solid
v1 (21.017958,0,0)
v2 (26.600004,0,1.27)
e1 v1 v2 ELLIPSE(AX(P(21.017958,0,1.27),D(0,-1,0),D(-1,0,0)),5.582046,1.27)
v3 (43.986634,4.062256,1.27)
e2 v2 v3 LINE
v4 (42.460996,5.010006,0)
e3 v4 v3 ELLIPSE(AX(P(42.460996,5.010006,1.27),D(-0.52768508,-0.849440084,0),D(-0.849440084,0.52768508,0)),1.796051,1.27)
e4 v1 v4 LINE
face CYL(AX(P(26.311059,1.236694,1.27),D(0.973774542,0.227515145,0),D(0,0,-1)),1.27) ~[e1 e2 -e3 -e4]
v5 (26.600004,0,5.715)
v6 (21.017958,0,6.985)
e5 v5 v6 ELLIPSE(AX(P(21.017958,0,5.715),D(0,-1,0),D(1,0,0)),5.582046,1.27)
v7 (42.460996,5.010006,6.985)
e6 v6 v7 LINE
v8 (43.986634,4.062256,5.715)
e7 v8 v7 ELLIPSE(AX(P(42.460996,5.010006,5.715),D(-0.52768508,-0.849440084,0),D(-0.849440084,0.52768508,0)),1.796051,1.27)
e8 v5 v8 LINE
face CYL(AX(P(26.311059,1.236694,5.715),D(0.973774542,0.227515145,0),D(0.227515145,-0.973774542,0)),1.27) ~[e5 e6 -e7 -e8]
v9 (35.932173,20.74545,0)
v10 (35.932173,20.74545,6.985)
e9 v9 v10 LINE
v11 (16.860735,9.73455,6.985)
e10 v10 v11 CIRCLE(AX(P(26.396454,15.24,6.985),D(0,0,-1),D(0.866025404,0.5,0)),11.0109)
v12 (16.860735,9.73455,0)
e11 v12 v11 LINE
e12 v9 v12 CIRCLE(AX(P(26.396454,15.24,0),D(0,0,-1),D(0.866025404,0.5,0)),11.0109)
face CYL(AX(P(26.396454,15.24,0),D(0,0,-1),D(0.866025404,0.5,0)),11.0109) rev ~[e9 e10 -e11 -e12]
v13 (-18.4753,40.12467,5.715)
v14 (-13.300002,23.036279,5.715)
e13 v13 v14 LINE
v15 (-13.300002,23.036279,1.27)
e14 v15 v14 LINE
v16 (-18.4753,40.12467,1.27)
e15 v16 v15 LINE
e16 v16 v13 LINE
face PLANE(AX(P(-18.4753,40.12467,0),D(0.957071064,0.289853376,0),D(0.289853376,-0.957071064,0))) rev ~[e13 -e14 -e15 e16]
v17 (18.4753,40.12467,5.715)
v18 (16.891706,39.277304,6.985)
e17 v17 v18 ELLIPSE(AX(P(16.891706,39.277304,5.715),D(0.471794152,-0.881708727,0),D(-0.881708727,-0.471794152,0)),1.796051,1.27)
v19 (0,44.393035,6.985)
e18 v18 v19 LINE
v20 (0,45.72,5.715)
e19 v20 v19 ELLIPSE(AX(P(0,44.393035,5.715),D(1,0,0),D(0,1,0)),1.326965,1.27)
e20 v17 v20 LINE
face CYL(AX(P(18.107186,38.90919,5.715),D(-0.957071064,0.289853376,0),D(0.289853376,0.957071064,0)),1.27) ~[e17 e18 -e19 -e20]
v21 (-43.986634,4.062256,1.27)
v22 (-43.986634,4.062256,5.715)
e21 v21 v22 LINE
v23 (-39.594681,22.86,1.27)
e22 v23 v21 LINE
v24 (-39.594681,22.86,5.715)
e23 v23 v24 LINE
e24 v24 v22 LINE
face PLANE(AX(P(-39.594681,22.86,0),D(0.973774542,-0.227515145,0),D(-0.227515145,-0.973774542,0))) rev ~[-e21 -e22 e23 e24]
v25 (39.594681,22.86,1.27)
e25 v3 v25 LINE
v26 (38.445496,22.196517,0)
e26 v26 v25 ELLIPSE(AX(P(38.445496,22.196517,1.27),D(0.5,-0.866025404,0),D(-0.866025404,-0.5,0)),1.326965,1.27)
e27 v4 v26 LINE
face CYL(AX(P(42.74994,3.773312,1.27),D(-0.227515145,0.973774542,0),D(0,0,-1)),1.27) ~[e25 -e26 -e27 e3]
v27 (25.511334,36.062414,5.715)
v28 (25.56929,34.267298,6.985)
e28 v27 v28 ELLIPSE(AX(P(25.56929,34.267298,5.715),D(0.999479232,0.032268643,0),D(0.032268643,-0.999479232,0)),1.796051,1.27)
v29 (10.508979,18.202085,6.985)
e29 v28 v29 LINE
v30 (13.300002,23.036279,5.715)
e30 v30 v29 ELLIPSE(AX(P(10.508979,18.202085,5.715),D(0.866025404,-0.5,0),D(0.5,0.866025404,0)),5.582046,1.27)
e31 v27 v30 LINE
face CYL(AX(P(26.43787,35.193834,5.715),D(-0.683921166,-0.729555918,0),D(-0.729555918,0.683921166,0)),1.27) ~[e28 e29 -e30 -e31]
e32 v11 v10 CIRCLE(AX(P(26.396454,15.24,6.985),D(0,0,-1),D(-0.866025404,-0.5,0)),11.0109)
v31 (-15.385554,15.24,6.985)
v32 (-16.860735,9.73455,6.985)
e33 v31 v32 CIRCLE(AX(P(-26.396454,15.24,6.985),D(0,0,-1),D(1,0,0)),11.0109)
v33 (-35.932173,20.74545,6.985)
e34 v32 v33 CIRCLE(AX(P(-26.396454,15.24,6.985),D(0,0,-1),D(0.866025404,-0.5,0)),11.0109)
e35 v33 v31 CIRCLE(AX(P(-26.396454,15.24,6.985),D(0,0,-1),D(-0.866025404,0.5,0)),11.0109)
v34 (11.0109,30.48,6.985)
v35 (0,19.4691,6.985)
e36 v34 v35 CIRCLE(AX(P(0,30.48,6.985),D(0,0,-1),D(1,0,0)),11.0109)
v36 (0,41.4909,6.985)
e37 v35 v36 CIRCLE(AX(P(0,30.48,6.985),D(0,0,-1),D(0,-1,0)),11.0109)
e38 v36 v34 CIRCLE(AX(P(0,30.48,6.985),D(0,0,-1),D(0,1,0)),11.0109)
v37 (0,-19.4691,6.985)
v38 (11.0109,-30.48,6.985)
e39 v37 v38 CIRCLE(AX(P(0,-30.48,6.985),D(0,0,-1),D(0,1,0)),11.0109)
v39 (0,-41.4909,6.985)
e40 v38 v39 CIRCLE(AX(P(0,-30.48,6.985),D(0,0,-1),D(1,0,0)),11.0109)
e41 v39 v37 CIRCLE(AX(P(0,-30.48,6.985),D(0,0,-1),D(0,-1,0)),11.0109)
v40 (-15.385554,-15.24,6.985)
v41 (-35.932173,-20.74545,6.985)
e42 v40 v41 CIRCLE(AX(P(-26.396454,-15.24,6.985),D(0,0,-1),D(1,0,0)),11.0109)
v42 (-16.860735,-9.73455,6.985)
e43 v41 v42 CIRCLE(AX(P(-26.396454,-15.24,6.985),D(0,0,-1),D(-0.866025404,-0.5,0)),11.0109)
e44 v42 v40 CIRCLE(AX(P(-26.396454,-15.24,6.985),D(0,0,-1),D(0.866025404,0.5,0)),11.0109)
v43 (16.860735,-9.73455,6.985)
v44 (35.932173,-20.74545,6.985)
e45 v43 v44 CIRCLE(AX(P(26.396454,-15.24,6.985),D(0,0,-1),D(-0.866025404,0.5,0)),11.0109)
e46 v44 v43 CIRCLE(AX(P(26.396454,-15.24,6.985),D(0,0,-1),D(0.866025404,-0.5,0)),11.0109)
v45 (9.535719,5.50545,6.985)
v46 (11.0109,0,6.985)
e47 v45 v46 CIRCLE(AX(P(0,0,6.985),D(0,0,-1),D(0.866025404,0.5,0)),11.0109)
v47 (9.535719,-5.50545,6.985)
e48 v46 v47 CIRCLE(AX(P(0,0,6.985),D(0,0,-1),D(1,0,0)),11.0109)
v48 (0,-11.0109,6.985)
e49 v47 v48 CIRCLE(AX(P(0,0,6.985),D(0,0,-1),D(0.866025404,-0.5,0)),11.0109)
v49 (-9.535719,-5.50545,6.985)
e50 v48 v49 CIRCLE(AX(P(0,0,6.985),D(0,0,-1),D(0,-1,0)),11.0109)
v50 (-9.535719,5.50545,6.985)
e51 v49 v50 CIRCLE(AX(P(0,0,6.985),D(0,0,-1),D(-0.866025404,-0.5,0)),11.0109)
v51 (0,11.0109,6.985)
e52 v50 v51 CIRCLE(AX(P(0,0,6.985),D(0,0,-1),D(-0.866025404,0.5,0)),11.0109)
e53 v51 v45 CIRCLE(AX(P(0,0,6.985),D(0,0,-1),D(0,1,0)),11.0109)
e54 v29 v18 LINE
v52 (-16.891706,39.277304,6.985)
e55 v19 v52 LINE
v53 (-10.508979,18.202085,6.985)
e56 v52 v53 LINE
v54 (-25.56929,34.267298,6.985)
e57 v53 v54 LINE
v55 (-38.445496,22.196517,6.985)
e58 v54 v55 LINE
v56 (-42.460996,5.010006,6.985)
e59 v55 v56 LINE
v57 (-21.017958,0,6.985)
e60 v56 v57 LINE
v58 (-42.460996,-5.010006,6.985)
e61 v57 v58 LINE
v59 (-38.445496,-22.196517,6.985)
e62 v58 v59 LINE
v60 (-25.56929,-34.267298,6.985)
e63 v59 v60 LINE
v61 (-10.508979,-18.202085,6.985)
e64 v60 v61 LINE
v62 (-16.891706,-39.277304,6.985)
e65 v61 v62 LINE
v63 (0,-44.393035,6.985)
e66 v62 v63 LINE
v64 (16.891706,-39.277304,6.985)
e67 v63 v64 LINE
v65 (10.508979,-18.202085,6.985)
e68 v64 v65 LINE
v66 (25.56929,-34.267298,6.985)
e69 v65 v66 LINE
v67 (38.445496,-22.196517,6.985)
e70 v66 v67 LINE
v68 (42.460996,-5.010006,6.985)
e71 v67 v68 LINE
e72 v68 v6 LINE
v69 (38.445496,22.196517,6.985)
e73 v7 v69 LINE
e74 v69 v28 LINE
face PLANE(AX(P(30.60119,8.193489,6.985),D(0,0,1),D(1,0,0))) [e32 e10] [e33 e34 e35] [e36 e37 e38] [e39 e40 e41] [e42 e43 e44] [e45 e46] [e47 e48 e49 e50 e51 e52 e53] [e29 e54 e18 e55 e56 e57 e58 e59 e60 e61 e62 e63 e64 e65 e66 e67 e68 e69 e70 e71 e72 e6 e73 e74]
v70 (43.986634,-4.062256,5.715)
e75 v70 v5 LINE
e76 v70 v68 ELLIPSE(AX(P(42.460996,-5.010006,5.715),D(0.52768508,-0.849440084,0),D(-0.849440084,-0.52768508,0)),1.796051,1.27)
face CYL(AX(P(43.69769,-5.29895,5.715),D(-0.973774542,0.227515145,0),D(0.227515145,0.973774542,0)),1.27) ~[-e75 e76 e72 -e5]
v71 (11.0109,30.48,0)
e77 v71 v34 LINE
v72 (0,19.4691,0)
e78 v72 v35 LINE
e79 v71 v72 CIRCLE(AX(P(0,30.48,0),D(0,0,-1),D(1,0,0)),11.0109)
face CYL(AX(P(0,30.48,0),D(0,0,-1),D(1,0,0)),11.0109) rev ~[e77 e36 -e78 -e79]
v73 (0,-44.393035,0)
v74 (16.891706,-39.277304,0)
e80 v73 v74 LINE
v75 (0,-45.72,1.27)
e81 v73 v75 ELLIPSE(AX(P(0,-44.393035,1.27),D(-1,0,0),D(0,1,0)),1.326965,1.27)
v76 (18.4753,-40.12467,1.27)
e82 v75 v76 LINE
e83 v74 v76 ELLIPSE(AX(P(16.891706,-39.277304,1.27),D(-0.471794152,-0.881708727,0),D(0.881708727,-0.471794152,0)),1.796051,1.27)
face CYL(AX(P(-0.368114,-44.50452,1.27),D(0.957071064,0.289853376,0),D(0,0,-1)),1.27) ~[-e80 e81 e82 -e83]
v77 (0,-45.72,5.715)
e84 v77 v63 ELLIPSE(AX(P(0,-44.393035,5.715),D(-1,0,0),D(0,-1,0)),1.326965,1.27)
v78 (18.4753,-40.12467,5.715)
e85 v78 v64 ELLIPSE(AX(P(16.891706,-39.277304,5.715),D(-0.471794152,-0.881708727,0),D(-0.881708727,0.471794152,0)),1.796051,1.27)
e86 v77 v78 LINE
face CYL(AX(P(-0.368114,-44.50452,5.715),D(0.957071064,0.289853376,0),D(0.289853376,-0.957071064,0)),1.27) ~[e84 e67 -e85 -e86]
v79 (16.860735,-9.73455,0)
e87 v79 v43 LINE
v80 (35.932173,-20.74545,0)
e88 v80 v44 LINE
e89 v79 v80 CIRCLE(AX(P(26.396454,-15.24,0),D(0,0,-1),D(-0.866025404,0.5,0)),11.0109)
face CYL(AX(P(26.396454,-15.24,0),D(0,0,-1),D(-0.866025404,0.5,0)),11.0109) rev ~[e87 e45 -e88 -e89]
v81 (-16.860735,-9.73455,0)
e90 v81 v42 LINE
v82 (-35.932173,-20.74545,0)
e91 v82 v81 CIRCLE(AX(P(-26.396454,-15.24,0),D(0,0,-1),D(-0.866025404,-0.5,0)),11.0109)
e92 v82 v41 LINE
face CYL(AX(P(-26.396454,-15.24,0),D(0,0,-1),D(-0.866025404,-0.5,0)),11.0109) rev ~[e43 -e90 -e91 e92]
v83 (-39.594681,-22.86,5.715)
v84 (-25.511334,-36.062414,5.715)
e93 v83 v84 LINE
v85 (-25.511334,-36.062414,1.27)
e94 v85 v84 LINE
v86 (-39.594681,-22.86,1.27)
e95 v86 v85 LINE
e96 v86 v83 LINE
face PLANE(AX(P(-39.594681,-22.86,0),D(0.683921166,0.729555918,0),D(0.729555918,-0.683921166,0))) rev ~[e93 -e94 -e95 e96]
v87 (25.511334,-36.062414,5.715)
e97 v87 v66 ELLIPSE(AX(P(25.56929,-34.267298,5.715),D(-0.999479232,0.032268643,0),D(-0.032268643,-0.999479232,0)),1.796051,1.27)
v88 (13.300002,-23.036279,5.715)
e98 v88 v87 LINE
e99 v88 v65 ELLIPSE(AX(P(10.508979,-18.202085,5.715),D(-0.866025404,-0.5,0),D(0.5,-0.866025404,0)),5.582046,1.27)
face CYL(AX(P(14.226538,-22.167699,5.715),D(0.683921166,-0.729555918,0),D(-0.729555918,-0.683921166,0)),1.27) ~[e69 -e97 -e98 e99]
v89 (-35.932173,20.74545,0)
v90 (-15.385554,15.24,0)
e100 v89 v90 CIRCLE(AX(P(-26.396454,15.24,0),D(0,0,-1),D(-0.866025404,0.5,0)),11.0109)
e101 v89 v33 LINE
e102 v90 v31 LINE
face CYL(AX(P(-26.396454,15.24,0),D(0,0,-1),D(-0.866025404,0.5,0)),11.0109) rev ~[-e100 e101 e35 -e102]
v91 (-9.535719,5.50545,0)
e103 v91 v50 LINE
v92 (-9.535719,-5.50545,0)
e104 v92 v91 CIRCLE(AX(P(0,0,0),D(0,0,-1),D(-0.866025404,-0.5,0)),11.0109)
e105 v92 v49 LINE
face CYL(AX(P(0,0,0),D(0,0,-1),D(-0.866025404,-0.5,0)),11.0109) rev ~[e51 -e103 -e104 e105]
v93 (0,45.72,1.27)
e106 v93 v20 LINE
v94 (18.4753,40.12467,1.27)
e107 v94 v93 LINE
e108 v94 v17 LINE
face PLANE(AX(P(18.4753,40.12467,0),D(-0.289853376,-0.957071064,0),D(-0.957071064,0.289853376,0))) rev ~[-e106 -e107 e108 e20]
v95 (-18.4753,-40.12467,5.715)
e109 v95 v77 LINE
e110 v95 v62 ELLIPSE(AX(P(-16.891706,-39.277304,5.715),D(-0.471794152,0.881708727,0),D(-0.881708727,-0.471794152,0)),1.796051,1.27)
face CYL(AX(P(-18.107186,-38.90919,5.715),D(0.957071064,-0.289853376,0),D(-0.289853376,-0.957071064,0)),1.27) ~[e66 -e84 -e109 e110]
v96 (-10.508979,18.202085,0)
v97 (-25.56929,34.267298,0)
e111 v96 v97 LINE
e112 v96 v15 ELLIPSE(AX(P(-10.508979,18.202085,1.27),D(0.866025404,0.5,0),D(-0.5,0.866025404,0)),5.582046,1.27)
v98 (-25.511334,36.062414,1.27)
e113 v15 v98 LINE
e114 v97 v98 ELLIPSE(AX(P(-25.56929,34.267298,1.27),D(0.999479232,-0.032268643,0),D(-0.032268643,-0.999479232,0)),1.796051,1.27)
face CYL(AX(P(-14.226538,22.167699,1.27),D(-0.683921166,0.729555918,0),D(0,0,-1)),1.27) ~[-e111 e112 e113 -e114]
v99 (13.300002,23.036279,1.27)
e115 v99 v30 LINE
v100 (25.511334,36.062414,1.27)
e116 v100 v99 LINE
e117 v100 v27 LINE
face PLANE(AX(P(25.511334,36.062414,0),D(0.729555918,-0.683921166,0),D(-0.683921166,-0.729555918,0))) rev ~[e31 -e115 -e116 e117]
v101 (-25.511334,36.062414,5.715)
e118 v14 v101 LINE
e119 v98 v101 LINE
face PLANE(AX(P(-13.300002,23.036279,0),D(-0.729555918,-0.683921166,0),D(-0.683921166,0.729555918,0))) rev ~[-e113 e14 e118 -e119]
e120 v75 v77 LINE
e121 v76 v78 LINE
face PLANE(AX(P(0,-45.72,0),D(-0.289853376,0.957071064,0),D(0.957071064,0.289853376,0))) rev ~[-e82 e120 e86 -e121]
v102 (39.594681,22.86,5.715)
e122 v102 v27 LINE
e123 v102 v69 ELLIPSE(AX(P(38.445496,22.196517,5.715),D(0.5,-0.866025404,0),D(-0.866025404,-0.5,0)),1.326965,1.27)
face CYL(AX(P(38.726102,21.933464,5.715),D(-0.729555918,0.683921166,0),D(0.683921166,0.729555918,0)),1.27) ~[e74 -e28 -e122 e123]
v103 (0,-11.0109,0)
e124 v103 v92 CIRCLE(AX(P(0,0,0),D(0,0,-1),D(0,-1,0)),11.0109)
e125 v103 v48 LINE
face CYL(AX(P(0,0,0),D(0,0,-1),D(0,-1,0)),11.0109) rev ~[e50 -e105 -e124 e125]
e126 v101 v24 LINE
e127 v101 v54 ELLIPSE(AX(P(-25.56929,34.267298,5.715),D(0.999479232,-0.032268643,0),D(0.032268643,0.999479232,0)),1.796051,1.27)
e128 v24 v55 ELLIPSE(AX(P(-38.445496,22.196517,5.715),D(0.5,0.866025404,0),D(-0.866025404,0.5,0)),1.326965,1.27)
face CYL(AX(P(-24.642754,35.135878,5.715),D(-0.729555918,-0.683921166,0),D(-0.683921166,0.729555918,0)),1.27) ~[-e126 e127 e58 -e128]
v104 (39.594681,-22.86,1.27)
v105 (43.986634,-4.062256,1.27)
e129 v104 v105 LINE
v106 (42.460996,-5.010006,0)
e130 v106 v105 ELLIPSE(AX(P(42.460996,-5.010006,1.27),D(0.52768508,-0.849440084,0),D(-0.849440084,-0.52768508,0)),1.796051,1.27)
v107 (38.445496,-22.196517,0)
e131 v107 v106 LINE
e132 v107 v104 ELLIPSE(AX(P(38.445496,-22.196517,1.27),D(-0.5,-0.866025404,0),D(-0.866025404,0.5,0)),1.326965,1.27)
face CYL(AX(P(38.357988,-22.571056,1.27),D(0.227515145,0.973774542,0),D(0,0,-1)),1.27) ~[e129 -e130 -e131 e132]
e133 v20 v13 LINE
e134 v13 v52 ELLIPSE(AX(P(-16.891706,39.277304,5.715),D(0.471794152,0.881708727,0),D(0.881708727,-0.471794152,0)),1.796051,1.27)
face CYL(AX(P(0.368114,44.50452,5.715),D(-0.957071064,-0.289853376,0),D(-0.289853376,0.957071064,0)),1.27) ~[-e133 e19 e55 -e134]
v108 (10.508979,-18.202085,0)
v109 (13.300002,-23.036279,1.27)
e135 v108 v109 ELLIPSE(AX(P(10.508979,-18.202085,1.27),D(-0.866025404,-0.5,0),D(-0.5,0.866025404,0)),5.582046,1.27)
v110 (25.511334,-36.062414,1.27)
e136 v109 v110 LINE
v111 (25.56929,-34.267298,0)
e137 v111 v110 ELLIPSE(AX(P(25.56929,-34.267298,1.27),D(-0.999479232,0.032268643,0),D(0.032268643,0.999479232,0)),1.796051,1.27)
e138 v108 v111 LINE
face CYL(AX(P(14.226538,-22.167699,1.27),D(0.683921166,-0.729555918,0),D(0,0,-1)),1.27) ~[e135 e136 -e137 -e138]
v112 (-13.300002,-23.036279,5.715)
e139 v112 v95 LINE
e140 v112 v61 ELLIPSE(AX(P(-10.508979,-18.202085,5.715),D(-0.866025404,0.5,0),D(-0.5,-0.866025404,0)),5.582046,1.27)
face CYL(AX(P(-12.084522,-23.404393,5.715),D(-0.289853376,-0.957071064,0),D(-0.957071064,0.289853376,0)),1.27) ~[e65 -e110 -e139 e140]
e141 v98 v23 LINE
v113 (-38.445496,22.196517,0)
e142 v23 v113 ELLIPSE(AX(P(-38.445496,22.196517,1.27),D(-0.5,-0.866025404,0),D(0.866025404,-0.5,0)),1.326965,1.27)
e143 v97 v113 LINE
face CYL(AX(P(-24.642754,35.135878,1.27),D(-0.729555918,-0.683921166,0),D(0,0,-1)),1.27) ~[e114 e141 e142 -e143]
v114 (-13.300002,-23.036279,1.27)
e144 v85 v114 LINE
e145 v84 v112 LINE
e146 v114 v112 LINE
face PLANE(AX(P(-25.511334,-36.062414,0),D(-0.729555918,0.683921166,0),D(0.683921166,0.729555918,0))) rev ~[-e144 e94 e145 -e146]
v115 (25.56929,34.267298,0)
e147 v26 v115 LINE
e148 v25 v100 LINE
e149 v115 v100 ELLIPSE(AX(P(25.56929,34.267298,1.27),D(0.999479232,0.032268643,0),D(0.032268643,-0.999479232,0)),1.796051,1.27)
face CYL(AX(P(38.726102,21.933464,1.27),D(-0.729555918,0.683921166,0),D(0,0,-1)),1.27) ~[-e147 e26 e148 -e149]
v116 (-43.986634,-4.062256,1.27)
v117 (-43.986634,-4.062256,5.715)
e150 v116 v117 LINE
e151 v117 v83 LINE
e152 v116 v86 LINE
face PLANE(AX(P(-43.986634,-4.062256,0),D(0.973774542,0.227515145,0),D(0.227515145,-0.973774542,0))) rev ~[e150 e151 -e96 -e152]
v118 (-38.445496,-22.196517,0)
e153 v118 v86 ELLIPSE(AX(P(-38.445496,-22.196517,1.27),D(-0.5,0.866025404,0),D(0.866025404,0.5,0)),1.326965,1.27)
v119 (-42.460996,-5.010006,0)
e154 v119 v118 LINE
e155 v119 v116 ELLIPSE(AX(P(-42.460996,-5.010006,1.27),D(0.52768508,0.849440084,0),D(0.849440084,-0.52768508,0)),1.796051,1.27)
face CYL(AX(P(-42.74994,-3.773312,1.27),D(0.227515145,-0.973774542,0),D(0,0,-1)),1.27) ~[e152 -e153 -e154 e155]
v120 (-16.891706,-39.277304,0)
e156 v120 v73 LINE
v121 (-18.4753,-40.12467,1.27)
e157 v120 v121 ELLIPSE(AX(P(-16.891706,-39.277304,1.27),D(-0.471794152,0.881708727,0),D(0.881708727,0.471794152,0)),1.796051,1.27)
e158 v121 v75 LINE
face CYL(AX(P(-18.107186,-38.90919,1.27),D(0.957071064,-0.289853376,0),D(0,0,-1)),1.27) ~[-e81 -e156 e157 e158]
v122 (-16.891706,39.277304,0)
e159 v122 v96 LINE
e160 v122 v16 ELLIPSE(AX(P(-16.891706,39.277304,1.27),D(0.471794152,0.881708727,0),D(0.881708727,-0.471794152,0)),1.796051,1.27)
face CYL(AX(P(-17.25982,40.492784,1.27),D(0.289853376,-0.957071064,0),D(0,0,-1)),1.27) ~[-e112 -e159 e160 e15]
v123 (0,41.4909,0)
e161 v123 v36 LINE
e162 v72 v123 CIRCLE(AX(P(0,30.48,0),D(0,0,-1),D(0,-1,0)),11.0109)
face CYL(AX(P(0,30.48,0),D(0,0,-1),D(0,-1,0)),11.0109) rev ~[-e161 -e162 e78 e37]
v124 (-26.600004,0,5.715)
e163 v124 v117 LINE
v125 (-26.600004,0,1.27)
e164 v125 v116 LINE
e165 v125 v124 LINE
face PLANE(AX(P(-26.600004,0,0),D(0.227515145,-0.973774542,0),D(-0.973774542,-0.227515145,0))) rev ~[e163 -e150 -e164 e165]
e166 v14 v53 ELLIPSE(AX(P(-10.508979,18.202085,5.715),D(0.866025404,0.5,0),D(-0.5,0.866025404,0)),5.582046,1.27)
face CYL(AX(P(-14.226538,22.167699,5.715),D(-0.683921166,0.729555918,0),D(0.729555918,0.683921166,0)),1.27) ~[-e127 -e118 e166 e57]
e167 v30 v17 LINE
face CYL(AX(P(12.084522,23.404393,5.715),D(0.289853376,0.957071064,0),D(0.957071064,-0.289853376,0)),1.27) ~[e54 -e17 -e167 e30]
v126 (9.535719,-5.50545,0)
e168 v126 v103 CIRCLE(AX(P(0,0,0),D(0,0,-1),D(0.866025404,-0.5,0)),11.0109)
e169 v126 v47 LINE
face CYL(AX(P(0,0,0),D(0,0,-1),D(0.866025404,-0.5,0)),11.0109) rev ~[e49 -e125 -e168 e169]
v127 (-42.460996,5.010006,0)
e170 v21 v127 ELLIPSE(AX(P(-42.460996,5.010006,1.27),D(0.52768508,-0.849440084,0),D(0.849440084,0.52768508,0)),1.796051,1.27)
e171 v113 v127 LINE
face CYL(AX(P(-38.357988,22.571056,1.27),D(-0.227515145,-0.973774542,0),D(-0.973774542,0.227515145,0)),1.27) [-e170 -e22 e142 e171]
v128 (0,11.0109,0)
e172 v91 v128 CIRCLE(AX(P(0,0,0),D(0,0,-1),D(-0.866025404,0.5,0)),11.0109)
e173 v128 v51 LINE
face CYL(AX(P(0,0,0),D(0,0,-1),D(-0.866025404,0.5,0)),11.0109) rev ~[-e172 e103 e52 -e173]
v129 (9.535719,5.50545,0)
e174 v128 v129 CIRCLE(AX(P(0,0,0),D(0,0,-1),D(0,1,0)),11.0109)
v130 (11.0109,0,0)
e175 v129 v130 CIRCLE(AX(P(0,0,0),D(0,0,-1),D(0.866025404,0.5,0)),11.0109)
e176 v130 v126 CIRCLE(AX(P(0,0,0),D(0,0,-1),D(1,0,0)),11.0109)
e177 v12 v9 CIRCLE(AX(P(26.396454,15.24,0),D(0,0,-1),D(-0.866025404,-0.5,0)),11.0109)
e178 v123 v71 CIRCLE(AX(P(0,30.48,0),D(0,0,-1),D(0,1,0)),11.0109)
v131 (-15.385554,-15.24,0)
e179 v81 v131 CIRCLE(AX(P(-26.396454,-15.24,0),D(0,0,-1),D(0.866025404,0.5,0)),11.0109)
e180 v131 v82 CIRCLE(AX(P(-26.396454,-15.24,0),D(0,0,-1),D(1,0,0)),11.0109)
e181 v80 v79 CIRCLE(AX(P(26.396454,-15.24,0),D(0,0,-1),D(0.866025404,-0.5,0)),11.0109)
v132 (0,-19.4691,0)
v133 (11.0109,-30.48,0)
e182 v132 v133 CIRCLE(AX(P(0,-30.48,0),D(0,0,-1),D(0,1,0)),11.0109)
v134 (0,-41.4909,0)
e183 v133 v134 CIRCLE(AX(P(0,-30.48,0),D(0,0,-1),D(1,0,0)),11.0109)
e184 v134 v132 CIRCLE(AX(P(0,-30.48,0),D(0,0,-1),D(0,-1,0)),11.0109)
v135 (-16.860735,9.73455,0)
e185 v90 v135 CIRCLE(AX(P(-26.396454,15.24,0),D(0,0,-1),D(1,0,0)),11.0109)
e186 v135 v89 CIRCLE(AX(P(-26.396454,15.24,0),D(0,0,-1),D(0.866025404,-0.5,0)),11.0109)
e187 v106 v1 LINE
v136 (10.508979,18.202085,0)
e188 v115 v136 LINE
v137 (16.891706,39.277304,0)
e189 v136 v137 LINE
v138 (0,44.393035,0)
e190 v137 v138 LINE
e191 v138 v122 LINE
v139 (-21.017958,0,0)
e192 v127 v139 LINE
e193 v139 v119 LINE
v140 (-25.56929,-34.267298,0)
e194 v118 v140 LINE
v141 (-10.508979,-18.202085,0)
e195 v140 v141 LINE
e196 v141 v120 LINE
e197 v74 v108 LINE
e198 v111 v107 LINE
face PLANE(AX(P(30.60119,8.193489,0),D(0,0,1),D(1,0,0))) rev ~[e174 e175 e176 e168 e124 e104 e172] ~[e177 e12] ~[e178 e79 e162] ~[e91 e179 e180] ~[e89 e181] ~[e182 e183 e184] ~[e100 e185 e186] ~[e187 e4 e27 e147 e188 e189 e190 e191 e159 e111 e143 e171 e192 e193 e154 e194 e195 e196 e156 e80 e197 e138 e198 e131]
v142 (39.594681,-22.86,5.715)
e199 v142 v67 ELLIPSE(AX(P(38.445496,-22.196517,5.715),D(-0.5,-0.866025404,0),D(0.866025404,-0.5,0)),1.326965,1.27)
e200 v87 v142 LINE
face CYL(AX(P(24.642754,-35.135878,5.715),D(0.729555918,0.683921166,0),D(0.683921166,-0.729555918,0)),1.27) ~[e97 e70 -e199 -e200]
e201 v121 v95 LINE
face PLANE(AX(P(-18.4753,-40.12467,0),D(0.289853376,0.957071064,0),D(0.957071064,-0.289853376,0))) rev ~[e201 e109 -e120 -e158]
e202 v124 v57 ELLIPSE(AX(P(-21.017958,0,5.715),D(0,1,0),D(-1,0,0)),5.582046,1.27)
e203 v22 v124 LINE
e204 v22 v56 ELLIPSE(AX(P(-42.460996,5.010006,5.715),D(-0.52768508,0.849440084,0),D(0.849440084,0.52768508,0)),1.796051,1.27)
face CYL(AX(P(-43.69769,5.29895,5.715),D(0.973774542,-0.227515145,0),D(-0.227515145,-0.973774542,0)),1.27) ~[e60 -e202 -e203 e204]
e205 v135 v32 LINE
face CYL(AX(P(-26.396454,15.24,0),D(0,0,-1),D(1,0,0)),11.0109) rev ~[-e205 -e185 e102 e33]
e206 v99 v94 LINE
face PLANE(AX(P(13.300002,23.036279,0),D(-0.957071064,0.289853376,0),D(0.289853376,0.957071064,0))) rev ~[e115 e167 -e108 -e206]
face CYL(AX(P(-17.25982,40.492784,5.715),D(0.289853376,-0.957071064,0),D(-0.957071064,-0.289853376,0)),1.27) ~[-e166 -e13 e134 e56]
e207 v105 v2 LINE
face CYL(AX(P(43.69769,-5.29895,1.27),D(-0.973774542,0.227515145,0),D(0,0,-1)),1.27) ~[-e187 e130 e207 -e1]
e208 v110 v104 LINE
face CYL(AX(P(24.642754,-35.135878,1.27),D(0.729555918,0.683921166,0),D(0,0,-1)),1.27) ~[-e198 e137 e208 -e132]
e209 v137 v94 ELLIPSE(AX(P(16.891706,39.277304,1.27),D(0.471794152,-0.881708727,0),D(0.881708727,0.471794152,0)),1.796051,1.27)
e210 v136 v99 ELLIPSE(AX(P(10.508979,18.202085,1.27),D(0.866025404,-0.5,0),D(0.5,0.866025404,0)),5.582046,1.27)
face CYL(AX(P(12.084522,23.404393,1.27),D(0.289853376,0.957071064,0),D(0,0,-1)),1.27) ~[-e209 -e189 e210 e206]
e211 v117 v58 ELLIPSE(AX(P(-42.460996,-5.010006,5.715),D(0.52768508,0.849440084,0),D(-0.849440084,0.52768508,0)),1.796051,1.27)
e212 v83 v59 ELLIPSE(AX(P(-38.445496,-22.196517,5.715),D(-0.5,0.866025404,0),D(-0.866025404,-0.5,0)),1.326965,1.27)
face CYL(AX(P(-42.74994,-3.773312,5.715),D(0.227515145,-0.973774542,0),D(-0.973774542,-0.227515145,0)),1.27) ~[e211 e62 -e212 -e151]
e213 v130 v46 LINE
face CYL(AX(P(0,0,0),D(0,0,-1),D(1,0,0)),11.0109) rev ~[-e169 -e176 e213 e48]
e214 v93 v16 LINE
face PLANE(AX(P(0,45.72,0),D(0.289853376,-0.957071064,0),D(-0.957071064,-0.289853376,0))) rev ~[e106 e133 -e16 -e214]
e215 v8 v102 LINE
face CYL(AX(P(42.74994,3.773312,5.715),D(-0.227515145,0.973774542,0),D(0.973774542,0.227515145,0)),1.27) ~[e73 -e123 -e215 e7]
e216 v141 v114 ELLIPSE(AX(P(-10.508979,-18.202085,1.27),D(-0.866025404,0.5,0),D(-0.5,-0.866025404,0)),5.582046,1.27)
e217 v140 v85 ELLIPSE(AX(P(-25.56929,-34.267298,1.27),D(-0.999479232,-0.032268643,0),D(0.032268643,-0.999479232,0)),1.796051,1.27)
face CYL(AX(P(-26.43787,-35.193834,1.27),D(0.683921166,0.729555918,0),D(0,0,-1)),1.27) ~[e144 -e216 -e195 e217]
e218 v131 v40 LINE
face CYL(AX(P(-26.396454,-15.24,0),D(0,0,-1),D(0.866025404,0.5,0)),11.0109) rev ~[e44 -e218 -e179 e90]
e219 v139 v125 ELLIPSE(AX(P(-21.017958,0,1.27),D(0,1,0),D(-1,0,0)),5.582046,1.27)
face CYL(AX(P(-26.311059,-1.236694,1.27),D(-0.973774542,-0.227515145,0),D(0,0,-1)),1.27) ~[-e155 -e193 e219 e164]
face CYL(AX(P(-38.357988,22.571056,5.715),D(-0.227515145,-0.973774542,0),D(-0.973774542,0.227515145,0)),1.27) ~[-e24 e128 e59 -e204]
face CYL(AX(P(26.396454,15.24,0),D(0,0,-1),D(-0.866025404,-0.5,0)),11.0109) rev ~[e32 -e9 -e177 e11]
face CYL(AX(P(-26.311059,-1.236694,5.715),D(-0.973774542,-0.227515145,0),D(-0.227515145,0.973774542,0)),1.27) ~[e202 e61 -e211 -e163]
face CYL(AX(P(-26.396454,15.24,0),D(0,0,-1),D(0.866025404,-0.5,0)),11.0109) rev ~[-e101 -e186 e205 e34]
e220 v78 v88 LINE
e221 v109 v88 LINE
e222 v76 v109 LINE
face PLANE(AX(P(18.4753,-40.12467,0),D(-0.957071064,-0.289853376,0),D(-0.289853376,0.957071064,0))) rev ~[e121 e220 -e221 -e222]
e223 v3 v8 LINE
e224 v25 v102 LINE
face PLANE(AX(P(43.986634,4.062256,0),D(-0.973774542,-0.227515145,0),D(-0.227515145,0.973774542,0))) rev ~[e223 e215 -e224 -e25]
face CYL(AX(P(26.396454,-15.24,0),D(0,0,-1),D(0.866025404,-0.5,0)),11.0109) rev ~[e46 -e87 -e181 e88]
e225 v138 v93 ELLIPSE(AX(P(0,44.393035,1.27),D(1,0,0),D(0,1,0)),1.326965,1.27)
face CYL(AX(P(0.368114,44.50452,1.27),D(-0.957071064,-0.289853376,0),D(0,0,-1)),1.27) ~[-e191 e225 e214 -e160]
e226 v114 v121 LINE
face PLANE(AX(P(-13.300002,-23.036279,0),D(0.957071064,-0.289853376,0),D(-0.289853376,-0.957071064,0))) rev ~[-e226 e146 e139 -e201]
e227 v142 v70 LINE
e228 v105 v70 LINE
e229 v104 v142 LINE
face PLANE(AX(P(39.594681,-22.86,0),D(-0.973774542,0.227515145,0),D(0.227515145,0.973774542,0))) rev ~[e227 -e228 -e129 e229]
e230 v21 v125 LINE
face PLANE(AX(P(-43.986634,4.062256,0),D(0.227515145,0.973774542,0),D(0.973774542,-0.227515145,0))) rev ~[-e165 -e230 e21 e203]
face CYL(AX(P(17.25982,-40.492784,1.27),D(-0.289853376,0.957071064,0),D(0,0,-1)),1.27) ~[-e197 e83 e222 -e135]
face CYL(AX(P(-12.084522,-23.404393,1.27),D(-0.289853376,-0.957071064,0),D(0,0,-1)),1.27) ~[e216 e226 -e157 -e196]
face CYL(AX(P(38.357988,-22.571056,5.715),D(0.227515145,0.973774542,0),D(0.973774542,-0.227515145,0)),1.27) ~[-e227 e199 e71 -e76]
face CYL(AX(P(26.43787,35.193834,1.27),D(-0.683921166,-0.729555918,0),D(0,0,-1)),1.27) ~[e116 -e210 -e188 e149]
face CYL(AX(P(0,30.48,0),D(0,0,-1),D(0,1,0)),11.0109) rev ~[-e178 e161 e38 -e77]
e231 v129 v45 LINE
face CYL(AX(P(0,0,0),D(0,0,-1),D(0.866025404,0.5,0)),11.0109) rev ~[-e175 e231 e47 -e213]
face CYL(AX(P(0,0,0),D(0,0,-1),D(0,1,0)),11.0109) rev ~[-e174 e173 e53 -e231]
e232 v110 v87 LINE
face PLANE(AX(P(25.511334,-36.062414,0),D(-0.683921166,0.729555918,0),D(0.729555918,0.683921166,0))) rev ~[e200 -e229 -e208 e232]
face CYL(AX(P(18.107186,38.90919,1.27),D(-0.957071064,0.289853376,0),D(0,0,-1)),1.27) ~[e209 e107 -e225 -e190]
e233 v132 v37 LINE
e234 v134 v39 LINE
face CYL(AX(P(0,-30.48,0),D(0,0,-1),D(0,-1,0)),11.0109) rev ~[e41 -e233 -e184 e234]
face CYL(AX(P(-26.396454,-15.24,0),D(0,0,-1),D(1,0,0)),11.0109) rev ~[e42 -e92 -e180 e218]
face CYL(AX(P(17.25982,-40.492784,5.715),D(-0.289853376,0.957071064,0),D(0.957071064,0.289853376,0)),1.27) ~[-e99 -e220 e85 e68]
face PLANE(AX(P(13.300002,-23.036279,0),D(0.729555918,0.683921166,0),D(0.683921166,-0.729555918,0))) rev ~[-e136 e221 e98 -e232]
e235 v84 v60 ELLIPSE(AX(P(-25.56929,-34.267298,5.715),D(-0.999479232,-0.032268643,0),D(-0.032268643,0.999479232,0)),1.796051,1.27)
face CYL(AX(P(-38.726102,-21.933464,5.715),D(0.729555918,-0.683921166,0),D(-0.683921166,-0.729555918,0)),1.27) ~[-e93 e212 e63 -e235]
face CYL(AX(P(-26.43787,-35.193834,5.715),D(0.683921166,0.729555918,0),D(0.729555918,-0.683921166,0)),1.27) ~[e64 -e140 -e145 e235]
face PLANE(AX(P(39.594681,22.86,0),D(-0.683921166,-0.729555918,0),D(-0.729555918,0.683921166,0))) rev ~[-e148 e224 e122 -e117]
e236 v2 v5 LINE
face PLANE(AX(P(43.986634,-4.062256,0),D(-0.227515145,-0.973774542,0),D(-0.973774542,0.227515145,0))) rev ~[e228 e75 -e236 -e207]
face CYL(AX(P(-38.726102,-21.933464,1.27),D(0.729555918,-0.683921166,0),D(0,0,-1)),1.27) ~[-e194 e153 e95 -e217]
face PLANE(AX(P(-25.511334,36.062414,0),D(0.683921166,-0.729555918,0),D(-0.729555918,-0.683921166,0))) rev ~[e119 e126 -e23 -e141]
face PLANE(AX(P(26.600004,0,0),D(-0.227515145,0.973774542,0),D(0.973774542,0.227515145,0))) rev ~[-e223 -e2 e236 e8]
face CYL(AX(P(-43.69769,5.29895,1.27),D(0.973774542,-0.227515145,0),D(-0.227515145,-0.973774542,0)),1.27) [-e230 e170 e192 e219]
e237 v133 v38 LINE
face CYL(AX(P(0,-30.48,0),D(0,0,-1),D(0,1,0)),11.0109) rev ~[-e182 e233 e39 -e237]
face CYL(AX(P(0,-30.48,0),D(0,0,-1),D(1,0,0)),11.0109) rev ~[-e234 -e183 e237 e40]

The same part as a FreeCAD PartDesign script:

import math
import FreeCAD as App
import Part
import Sketcher
Q = App.Units.Quantity


def edges_at(feature, points):
    """Names of the edges that pass closest to the given points."""
    edges = feature.Shape.Edges
    near = lambda p: min(range(len(edges)), key=lambda i: edges[i].distToShape(Part.Vertex(*p))[0])
    return sorted({f"Edge{near(p) + 1}" for p in points})

doc = App.newDocument("Part")
body = doc.addObject("PartDesign::Body", "Body")

# Sketch on XY plane
sketch1 = body.newObject("Sketcher::SketchObject", "Sketch")
sketch1.AttachmentSupport = (doc.getObject("XY_Plane"), [""])
sketch1.MapMode = "FlatFace"
sketch1.addGeometry(Part.LineSegment(App.Vector(-44, 4, 0), App.Vector(-27, 0, 0)), False)
sketch1.addGeometry(Part.LineSegment(App.Vector(-27, 0, 0), App.Vector(-44, -4, 0)), False)
sketch1.addGeometry(Part.LineSegment(App.Vector(-44, -4, 0), App.Vector(-40, -23, 0)), False)
sketch1.addGeometry(Part.LineSegment(App.Vector(-40, -23, 0), App.Vector(-26, -36, 0)), False)
sketch1.addGeometry(Part.LineSegment(App.Vector(-26, -36, 0), App.Vector(-13, -23, 0)), False)
sketch1.addGeometry(Part.LineSegment(App.Vector(-13, -23, 0), App.Vector(-18, -40, 0)), False)
sketch1.addGeometry(Part.LineSegment(App.Vector(-18, -40, 0), App.Vector(0, -46, 0)), False)
sketch1.addGeometry(Part.LineSegment(App.Vector(0, -46, 0), App.Vector(18, -40, 0)), False)
sketch1.addGeometry(Part.LineSegment(App.Vector(18, -40, 0), App.Vector(13, -23, 0)), False)
sketch1.addGeometry(Part.LineSegment(App.Vector(13, -23, 0), App.Vector(26, -36, 0)), False)
sketch1.addGeometry(Part.LineSegment(App.Vector(26, -36, 0), App.Vector(40, -23, 0)), False)
sketch1.addGeometry(Part.LineSegment(App.Vector(40, -23, 0), App.Vector(44, -4, 0)), False)
sketch1.addGeometry(Part.LineSegment(App.Vector(44, -4, 0), App.Vector(27, 0, 0)), False)
sketch1.addGeometry(Part.LineSegment(App.Vector(27, 0, 0), App.Vector(44, 4, 0)), False)
sketch1.addGeometry(Part.LineSegment(App.Vector(44, 4, 0), App.Vector(40, 23, 0)), False)
sketch1.addGeometry(Part.LineSegment(App.Vector(40, 23, 0), App.Vector(26, 36, 0)), False)
sketch1.addGeometry(Part.LineSegment(App.Vector(26, 36, 0), App.Vector(13, 23, 0)), False)
sketch1.addGeometry(Part.LineSegment(App.Vector(13, 23, 0), App.Vector(18, 40, 0)), False)
sketch1.addGeometry(Part.LineSegment(App.Vector(18, 40, 0), App.Vector(0, 46, 0)), False)
sketch1.addGeometry(Part.LineSegment(App.Vector(0, 46, 0), App.Vector(-18, 40, 0)), False)
sketch1.addGeometry(Part.LineSegment(App.Vector(-18, 40, 0), App.Vector(-13, 23, 0)), False)
sketch1.addGeometry(Part.LineSegment(App.Vector(-13, 23, 0), App.Vector(-26, 36, 0)), False)
sketch1.addGeometry(Part.LineSegment(App.Vector(-26, 36, 0), App.Vector(-40, 23, 0)), False)
sketch1.addGeometry(Part.LineSegment(App.Vector(-40, 23, 0), App.Vector(-44, 4, 0)), False)
sketch1.addGeometry(Part.ArcOfCircle(Part.Circle(App.Vector(-26, -15, 0), App.Vector(0, 0, 1), 11), math.radians(-150), math.radians(0)), False)
sketch1.addGeometry(Part.ArcOfCircle(Part.Circle(App.Vector(-26, -15, 0), App.Vector(0, 0, 1), 11), math.radians(30), math.radians(210)), False)
sketch1.addGeometry(Part.ArcOfCircle(Part.Circle(App.Vector(-26, -15, 0), App.Vector(0, 0, 1), 11), math.radians(0), math.radians(30)), False)
sketch1.addGeometry(Part.ArcOfCircle(Part.Circle(App.Vector(0, -30, 0), App.Vector(0, 0, 1), 11), math.radians(-90), math.radians(0)), False)
sketch1.addGeometry(Part.ArcOfCircle(Part.Circle(App.Vector(0, -30, 0), App.Vector(0, 0, 1), 11), math.radians(90), math.radians(270)), False)
sketch1.addGeometry(Part.ArcOfCircle(Part.Circle(App.Vector(0, -30, 0), App.Vector(0, 0, 1), 11), math.radians(0), math.radians(90)), False)
sketch1.addGeometry(Part.ArcOfCircle(Part.Circle(App.Vector(26, -15, 0), App.Vector(0, 0, 1), 11), math.radians(-30), math.radians(150)), False)
sketch1.addGeometry(Part.ArcOfCircle(Part.Circle(App.Vector(26, -15, 0), App.Vector(0, 0, 1), 11), math.radians(150), math.radians(330)), False)
sketch1.addGeometry(Part.ArcOfCircle(Part.Circle(App.Vector(-26, 15, 0), App.Vector(0, 0, 1), 11), math.radians(150), math.radians(330)), False)
sketch1.addGeometry(Part.ArcOfCircle(Part.Circle(App.Vector(-26, 15, 0), App.Vector(0, 0, 1), 11), math.radians(0), math.radians(150)), False)
sketch1.addGeometry(Part.ArcOfCircle(Part.Circle(App.Vector(-26, 15, 0), App.Vector(0, 0, 1), 11), math.radians(-30), math.radians(0)), False)
sketch1.addGeometry(Part.ArcOfCircle(Part.Circle(App.Vector(0, 0, 0), App.Vector(0, 0, 1), 11), math.radians(150), math.radians(210)), False)
sketch1.addGeometry(Part.ArcOfCircle(Part.Circle(App.Vector(0, 0, 0), App.Vector(0, 0, 1), 11), math.radians(90), math.radians(150)), False)
sketch1.addGeometry(Part.ArcOfCircle(Part.Circle(App.Vector(0, 0, 0), App.Vector(0, 0, 1), 11), math.radians(30), math.radians(90)), False)
sketch1.addGeometry(Part.ArcOfCircle(Part.Circle(App.Vector(0, 0, 0), App.Vector(0, 0, 1), 11), math.radians(0), math.radians(30)), False)
sketch1.addGeometry(Part.ArcOfCircle(Part.Circle(App.Vector(0, 0, 0), App.Vector(0, 0, 1), 11), math.radians(-30), math.radians(0)), False)
sketch1.addGeometry(Part.ArcOfCircle(Part.Circle(App.Vector(0, 0, 0), App.Vector(0, 0, 1), 11), math.radians(-90), math.radians(-30)), False)
sketch1.addGeometry(Part.ArcOfCircle(Part.Circle(App.Vector(0, 0, 0), App.Vector(0, 0, 1), 11), math.radians(-150), math.radians(-90)), False)
sketch1.addGeometry(Part.ArcOfCircle(Part.Circle(App.Vector(26, 15, 0), App.Vector(0, 0, 1), 11), math.radians(-150), math.radians(30)), False)
sketch1.addGeometry(Part.ArcOfCircle(Part.Circle(App.Vector(26, 15, 0), App.Vector(0, 0, 1), 11), math.radians(30), math.radians(210)), False)
sketch1.addGeometry(Part.ArcOfCircle(Part.Circle(App.Vector(0, 30, 0), App.Vector(0, 0, 1), 11), math.radians(-90), math.radians(0)), False)
sketch1.addGeometry(Part.ArcOfCircle(Part.Circle(App.Vector(0, 30, 0), App.Vector(0, 0, 1), 11), math.radians(90), math.radians(270)), False)
sketch1.addGeometry(Part.ArcOfCircle(Part.Circle(App.Vector(0, 30, 0), App.Vector(0, 0, 1), 11), math.radians(0), math.radians(90)), False)
sketch1.addConstraint(Sketcher.Constraint("Coincident", 0, 2, 1, 1))
sketch1.addConstraint(Sketcher.Constraint("Coincident", 1, 2, 2, 1))
sketch1.addConstraint(Sketcher.Constraint("Coincident", 2, 2, 3, 1))
sketch1.addConstraint(Sketcher.Constraint("Coincident", 3, 2, 4, 1))
sketch1.addConstraint(Sketcher.Constraint("Coincident", 4, 2, 5, 1))
sketch1.addConstraint(Sketcher.Constraint("Coincident", 5, 2, 6, 1))
sketch1.addConstraint(Sketcher.Constraint("Coincident", 6, 2, 7, 1))
sketch1.addConstraint(Sketcher.Constraint("Coincident", 7, 2, 8, 1))
sketch1.addConstraint(Sketcher.Constraint("Coincident", 8, 2, 9, 1))
sketch1.addConstraint(Sketcher.Constraint("Coincident", 9, 2, 10, 1))
sketch1.addConstraint(Sketcher.Constraint("Coincident", 10, 2, 11, 1))
sketch1.addConstraint(Sketcher.Constraint("Coincident", 11, 2, 12, 1))
sketch1.addConstraint(Sketcher.Constraint("Coincident", 12, 2, 13, 1))
sketch1.addConstraint(Sketcher.Constraint("Coincident", 13, 2, 14, 1))
sketch1.addConstraint(Sketcher.Constraint("Coincident", 14, 2, 15, 1))
sketch1.addConstraint(Sketcher.Constraint("Coincident", 15, 2, 16, 1))
sketch1.addConstraint(Sketcher.Constraint("Coincident", 16, 2, 17, 1))
sketch1.addConstraint(Sketcher.Constraint("Coincident", 17, 2, 18, 1))
sketch1.addConstraint(Sketcher.Constraint("Coincident", 18, 2, 19, 1))
sketch1.addConstraint(Sketcher.Constraint("Coincident", 19, 2, 20, 1))
sketch1.addConstraint(Sketcher.Constraint("Coincident", 20, 2, 21, 1))
sketch1.addConstraint(Sketcher.Constraint("Coincident", 21, 2, 22, 1))
sketch1.addConstraint(Sketcher.Constraint("Coincident", 22, 2, 23, 1))
sketch1.addConstraint(Sketcher.Constraint("Coincident", 23, 2, 0, 1))
sketch1.addConstraint(Sketcher.Constraint("Tangent", 24, 1, 25, 2))
sketch1.addConstraint(Sketcher.Constraint("Tangent", 25, 1, 26, 2))
sketch1.addConstraint(Sketcher.Constraint("Tangent", 26, 1, 24, 2))
sketch1.addConstraint(Sketcher.Constraint("Tangent", 27, 1, 28, 2))
sketch1.addConstraint(Sketcher.Constraint("Tangent", 28, 1, 29, 2))
sketch1.addConstraint(Sketcher.Constraint("Tangent", 29, 1, 27, 2))
sketch1.addConstraint(Sketcher.Constraint("Tangent", 30, 1, 31, 2))
sketch1.addConstraint(Sketcher.Constraint("Coincident", 31, 1, 30, 2))
sketch1.addConstraint(Sketcher.Constraint("Tangent", 32, 1, 33, 2))
sketch1.addConstraint(Sketcher.Constraint("Tangent", 33, 1, 34, 2))
sketch1.addConstraint(Sketcher.Constraint("Tangent", 34, 1, 32, 2))
sketch1.addConstraint(Sketcher.Constraint("Tangent", 35, 1, 36, 2))
sketch1.addConstraint(Sketcher.Constraint("Tangent", 36, 1, 37, 2))
sketch1.addConstraint(Sketcher.Constraint("Tangent", 37, 1, 38, 2))
sketch1.addConstraint(Sketcher.Constraint("Tangent", 38, 1, 39, 2))
sketch1.addConstraint(Sketcher.Constraint("Tangent", 39, 1, 40, 2))
sketch1.addConstraint(Sketcher.Constraint("Tangent", 40, 1, 41, 2))
sketch1.addConstraint(Sketcher.Constraint("Tangent", 41, 1, 35, 2))
sketch1.addConstraint(Sketcher.Constraint("Tangent", 42, 1, 43, 2))
sketch1.addConstraint(Sketcher.Constraint("Coincident", 43, 1, 42, 2))
sketch1.addConstraint(Sketcher.Constraint("Tangent", 44, 1, 45, 2))
sketch1.addConstraint(Sketcher.Constraint("Tangent", 45, 1, 46, 2))
sketch1.addConstraint(Sketcher.Constraint("Tangent", 46, 1, 44, 2))
sketch1.addConstraint(Sketcher.Constraint("Coincident", 35, 3, -1, 1))
sketch1.addConstraint(Sketcher.Constraint("Coincident", 37, 3, -1, 1))
sketch1.addConstraint(Sketcher.Constraint("Coincident", 39, 3, -1, 1))
sketch1.addConstraint(Sketcher.Constraint("Equal", 26, 27))
sketch1.addConstraint(Sketcher.Constraint("Equal", 29, 30))
sketch1.addConstraint(Sketcher.Constraint("Equal", 31, 32))
sketch1.addConstraint(Sketcher.Constraint("Equal", 34, 35))
sketch1.addConstraint(Sketcher.Constraint("Equal", 41, 42))
sketch1.addConstraint(Sketcher.Constraint("Equal", 43, 44))
sketch1.addConstraint(Sketcher.Constraint("Symmetric", 30, 3, 32, 3, -1, 1))
sketch1.addConstraint(Sketcher.Constraint("Symmetric", 24, 3, 42, 3, -1, 1))
sketch1.addConstraint(Sketcher.Constraint("Symmetric", 27, 3, 44, 3, -1, 1))
sketch1.addConstraint(Sketcher.Constraint("Symmetric", 0, 2, 12, 2, -1, 1))
sketch1.addConstraint(Sketcher.Constraint("Symmetric", 1, 2, 13, 2, -1, 1))
sketch1.addConstraint(Sketcher.Constraint("Symmetric", 2, 2, 14, 2, -1, 1))
sketch1.addConstraint(Sketcher.Constraint("Symmetric", 3, 2, 15, 2, -1, 1))
sketch1.addConstraint(Sketcher.Constraint("Symmetric", 4, 2, 16, 2, -1, 1))
sketch1.addConstraint(Sketcher.Constraint("Symmetric", 5, 2, 17, 2, -1, 1))
sketch1.addConstraint(Sketcher.Constraint("Symmetric", 6, 2, 18, 2, -1, 1))
sketch1.addConstraint(Sketcher.Constraint("Symmetric", 7, 2, 19, 2, -1, 1))
sketch1.addConstraint(Sketcher.Constraint("Symmetric", 8, 2, 20, 2, -1, 1))
sketch1.addConstraint(Sketcher.Constraint("Symmetric", 9, 2, 21, 2, -1, 1))
sketch1.addConstraint(Sketcher.Constraint("Symmetric", 10, 2, 22, 2, -1, 1))
sketch1.addConstraint(Sketcher.Constraint("Symmetric", 11, 2, 23, 2, -1, 1))
sketch1.addConstraint(Sketcher.Constraint("Symmetric", 24, 3, 30, 3, -2))
sketch1.addConstraint(Sketcher.Constraint("Symmetric", 5, 2, 7, 2, -2))
sketch1.addConstraint(Sketcher.Constraint("Symmetric", 4, 2, 8, 2, -2))
sketch1.addConstraint(Sketcher.Constraint("Symmetric", 3, 2, 9, 2, -2))
sketch1.addConstraint(Sketcher.Constraint("Symmetric", 2, 2, 10, 2, -2))
sketch1.addConstraint(Sketcher.Constraint("Symmetric", 1, 2, 11, 2, -2))
sketch1.addConstraint(Sketcher.Constraint("Symmetric", 29, 1, 46, 1, -1))
sketch1.addConstraint(Sketcher.Constraint("PointOnObject", 0, 2, -1))
sketch1.addConstraint(Sketcher.Constraint("PointOnObject", 6, 2, -2))
sketch1.addConstraint(Sketcher.Constraint("PointOnObject", 27, 1, -2))
sketch1.addConstraint(Sketcher.Constraint("PointOnObject", 28, 1, -2))
sketch1.addConstraint(Sketcher.Constraint("PointOnObject", 36, 1, -2))
sketch1.addConstraint(Sketcher.Constraint("PointOnObject", 38, 1, -1))
sketch1.addConstraint(Sketcher.Constraint("PointOnObject", 40, 1, -2))
sketch1.addConstraint(Sketcher.Constraint("PointOnObject", 44, 1, -2))
sketch1.addConstraint(Sketcher.Constraint("PointOnObject", 45, 1, -2))
sketch1.addConstraint(Sketcher.Constraint("Perpendicular", 1, 2))
sketch1.addConstraint(Sketcher.Constraint("Perpendicular", 3, 4))
sketch1.addConstraint(Sketcher.Constraint("Perpendicular", 5, 6))
sketch1.addConstraint(Sketcher.Constraint("Horizontal", 31, 3, 26, 1))
sketch1.addConstraint(Sketcher.Constraint("Horizontal", 28, 3, 29, 1))
sketch1.addConstraint(Sketcher.Constraint("Horizontal", 24, 1, 30, 1))
sketch1.addConstraint(Sketcher.Constraint("Horizontal", 25, 1, 31, 1))
sketch1.addConstraint(Sketcher.Constraint("Horizontal", 43, 3, 33, 1))
sketch1.addConstraint(Sketcher.Constraint("Horizontal", 35, 1, 37, 1))
sketch1.addConstraint(Sketcher.Constraint("Horizontal", 39, 1, 41, 1))
sketch1.addConstraint(Sketcher.Constraint("Horizontal", 34, 1, 42, 1))
sketch1.addConstraint(Sketcher.Constraint("Horizontal", 32, 1, 43, 1))
sketch1.addConstraint(Sketcher.Constraint("Vertical", 24, 1, 32, 1))
sketch1.addConstraint(Sketcher.Constraint("Vertical", 25, 1, 34, 1))
sketch1.addConstraint(Sketcher.Constraint("Vertical", 37, 1, 39, 1))
sketch1.addConstraint(Sketcher.Constraint("Equal", 2, 3))
sketch1.addConstraint(Sketcher.Constraint("Equal", 1, 4))
sketch1.addConstraint(Sketcher.Constraint("Equal", 4, 5))
sketch1.addConstraint(Sketcher.Constraint("Equal", 3, 6))
sketch1.addConstraint(Sketcher.Constraint("DistanceY", 24, 3, -1, 1, Q("0.6 in")))
sketch1.addConstraint(Sketcher.Constraint("DistanceY", 27, 3, -1, 1, Q("1.2 in")))
sketch1.addConstraint(Sketcher.Constraint("DistanceY", 2, 2, -1, 1, Q("0.9 in")))
sketch1.addConstraint(Sketcher.Constraint("DistanceY", 6, 2, -1, 1, Q("1.8 in")))
sketch1.addConstraint(Sketcher.Constraint("Radius", 24, Q("0.4335 in")))
sketch1.addConstraint(Sketcher.Constraint("Distance", 2, Q("0.76 in")))
sketch1.addConstraint(Sketcher.Constraint("DistanceX", 4, 2, -1, 1, Q("13.300002 mm")))
sketch1.addConstraint(Sketcher.Constraint("DistanceX", 5, 2, -1, 1, Q("18.4753 mm")))
sketch1.addConstraint(Sketcher.Constraint("DistanceY", 24, 1, -1, 1, Q("20.74545 mm")))
sketch1.addConstraint(Sketcher.Constraint("DistanceY", 25, 1, -1, 1, Q("9.73455 mm")))
sketch1.addConstraint(Sketcher.Constraint("DistanceX", 35, 1, -1, 1, Q("9.535719 mm")))
sketch1.addConstraint(Sketcher.Constraint("DistanceX", 24, 3, -1, 1, Q("26.396454 mm")))
pad1 = body.newObject("PartDesign::Pad", "Pad")
pad1.Profile = sketch1
pad1.Length = Q("0.275 in")
doc.recompute()

fillet = body.newObject("PartDesign::Fillet", "Fillet")
fillet.Base = (pad1, edges_at(pad1, [
    (9.238, 42.922, 6.985),
    (15.888, 31.58, 6.985),
    (19.406, 29.549, 6.985),
    (32.553, 29.461, 6.985),
    (41.791, 13.461, 6.985),
    (35.293, 2.031, 6.985),
    (35.293, -2.031, 6.985),
    (19.406, -29.549, 6.985),
    (15.888, -31.58, 6.985),
    (-15.888, -31.58, 6.985),
    (-19.406, -29.549, 6.985),
    (-35.293, -2.031, 6.985),
    (-35.293, 2.031, 6.985),
    (-19.406, 29.549, 6.985),
    (-15.888, 31.58, 6.985),
    (-9.238, 42.922, 6.985),
    (-32.553, 29.461, 6.985),
    (-41.791, 13.461, 6.985),
    (-41.791, -13.461, 6.985),
    (-32.553, -29.461, 6.985),
    (-9.238, -42.922, 6.985),
    (9.238, -42.922, 6.985),
    (32.553, -29.461, 6.985),
    (41.791, -13.461, 6.985),
]))
fillet.Radius = Q("0.05 in")
doc.recompute()

fillet2 = body.newObject("PartDesign::Fillet", "Fillet001")
fillet2.Base = (fillet, edges_at(fillet, [
    (-32.553, -29.461, 0),
    (-41.791, -13.461, 0),
    (-35.293, -2.031, 0),
    (-35.293, 2.031, 0),
    (-41.791, 13.461, 0),
    (-32.553, 29.461, 0),
    (-19.406, 29.549, 0),
    (-15.888, 31.58, 0),
    (15.888, 31.58, 0),
    (9.238, 42.922, 0),
    (-9.238, 42.922, 0),
    (19.406, 29.549, 0),
    (32.553, 29.461, 0),
    (41.791, 13.461, 0),
    (35.293, -2.031, 0),
    (35.293, 2.031, 0),
    (41.791, -13.461, 0),
    (32.553, -29.461, 0),
    (9.238, -42.922, 0),
    (-9.238, -42.922, 0),
    (-15.888, -31.58, 0),
    (-19.406, -29.549, 0),
    (15.888, -31.58, 0),
    (19.406, -29.549, 0),
]))
fillet2.Radius = Q("0.05 in")

doc.recompute()
